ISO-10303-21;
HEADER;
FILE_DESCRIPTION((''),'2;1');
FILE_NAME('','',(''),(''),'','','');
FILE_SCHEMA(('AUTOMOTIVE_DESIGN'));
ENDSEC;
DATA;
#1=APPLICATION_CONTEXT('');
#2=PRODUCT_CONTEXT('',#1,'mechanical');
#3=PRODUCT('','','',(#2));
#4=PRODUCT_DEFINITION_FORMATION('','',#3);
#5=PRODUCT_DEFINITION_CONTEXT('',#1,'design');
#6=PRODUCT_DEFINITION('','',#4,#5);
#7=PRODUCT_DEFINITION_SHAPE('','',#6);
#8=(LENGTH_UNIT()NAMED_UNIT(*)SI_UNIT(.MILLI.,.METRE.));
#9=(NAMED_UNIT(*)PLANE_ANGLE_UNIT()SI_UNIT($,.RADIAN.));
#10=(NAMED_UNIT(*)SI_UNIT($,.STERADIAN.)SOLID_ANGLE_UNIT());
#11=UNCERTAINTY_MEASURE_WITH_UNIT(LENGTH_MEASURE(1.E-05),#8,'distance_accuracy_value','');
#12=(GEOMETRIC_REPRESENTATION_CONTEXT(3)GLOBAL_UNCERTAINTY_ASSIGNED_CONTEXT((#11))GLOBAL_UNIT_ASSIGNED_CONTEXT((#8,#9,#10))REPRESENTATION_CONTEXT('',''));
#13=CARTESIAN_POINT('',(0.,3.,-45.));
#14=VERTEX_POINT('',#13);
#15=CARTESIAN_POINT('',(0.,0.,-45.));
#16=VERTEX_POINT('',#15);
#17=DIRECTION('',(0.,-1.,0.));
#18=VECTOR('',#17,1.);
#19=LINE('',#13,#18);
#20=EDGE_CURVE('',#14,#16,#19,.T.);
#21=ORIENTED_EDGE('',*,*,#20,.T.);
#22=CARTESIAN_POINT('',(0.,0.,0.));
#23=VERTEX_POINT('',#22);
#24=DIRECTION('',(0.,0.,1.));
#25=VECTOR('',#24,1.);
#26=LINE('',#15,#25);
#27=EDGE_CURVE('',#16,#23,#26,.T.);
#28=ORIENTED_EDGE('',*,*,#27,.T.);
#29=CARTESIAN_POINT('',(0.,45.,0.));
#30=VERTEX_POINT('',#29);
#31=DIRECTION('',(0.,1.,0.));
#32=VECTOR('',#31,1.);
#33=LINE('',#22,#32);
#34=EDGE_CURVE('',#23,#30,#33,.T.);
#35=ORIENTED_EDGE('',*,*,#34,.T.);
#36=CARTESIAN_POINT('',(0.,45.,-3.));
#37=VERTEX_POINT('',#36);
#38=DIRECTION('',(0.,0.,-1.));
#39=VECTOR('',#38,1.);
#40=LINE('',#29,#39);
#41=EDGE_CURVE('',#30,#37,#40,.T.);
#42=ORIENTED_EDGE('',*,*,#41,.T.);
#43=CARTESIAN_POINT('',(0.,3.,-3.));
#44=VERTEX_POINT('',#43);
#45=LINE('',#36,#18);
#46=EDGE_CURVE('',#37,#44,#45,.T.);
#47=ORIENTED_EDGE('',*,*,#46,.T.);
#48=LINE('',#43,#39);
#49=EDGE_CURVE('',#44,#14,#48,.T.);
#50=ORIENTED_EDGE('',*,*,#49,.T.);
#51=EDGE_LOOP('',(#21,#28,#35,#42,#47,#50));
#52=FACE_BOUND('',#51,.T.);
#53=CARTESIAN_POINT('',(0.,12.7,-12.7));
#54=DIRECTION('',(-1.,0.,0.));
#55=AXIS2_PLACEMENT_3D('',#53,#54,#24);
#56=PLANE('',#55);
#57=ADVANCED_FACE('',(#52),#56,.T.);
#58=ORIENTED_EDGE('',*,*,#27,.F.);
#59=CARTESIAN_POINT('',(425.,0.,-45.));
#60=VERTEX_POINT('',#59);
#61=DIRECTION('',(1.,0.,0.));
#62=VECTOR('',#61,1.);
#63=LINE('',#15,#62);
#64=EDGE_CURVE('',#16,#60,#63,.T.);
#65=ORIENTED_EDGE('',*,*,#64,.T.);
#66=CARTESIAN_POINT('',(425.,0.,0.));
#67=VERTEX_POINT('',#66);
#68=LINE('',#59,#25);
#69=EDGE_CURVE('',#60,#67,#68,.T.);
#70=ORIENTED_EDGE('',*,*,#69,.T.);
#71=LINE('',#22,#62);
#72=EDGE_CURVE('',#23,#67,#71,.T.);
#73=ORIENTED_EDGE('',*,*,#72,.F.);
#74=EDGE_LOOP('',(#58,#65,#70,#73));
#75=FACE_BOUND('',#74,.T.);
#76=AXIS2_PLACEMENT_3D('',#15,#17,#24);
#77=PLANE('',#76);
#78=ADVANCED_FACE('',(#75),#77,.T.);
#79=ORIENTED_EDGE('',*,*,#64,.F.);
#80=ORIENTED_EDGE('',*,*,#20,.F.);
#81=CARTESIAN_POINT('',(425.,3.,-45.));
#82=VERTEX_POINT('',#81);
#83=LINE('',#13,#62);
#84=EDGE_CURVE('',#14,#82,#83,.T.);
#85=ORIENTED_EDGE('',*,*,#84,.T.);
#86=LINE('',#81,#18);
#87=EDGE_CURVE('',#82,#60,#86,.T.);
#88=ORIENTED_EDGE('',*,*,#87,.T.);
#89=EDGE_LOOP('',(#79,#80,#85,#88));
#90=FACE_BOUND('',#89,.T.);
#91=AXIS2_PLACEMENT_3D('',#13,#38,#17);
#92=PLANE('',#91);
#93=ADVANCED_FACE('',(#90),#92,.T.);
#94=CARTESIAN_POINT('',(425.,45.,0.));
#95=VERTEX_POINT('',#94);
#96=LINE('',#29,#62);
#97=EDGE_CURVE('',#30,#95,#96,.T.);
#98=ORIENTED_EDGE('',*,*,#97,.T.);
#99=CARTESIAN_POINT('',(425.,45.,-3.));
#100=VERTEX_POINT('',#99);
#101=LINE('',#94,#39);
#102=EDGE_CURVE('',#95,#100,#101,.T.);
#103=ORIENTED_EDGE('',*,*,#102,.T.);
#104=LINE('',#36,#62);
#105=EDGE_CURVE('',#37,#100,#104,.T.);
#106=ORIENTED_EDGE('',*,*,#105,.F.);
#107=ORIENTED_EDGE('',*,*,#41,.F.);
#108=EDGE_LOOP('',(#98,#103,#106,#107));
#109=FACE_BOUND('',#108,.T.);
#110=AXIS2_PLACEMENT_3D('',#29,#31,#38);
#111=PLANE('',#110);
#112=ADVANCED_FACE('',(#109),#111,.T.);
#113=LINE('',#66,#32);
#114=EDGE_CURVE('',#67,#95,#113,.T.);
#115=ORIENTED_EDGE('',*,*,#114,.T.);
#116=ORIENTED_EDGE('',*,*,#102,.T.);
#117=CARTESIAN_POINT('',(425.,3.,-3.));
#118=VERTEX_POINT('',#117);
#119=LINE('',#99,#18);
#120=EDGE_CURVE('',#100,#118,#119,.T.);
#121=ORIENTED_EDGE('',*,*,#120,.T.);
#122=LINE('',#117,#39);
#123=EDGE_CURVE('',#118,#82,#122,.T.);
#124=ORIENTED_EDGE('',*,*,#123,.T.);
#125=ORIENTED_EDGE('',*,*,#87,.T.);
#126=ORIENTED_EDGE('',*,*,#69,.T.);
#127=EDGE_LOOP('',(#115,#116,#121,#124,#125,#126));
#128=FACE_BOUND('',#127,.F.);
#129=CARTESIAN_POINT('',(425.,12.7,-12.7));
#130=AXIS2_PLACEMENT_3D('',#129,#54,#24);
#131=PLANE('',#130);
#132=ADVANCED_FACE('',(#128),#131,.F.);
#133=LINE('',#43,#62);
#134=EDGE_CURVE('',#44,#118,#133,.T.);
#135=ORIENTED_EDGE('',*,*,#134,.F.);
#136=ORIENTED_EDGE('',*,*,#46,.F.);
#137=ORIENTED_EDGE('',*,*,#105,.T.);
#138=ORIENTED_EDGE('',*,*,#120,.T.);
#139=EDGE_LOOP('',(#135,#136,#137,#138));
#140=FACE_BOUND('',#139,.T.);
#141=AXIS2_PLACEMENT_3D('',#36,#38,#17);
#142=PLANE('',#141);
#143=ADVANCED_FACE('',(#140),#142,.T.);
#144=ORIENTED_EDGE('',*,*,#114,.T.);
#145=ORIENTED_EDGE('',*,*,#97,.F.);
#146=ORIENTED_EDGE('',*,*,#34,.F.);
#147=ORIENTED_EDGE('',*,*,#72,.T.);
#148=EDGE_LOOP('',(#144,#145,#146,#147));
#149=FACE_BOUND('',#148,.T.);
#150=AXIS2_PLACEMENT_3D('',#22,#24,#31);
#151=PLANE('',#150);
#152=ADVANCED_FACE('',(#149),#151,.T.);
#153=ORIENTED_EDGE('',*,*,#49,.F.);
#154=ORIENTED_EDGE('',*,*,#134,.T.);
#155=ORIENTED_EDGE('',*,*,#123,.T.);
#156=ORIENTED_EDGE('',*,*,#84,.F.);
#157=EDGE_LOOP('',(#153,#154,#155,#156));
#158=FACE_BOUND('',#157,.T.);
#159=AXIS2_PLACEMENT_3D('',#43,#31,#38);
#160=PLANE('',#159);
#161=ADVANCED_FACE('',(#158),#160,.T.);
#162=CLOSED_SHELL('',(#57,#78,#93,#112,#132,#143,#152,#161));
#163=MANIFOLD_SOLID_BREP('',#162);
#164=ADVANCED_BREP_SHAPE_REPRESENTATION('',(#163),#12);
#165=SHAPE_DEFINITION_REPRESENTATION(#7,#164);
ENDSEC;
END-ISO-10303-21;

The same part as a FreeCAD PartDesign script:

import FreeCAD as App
import Part
import Sketcher
Q = App.Units.Quantity


def add_polygon(sketch, points):
    """Adds a closed chain of lines whose ends are joined by coincident constraints."""
    first, n = sketch.GeometryCount, len(points)
    for a, b in zip(points, points[1:] + points[:1]):
        sketch.addGeometry(Part.LineSegment(App.Vector(*a, 0), App.Vector(*b, 0)), False)
    for i in range(n):
        sketch.addConstraint(Sketcher.Constraint("Coincident", first + i, 2, first + (i + 1) % n, 1))

doc = App.newDocument("Part")
body = doc.addObject("PartDesign::Body", "Body")

# Sketch on YZ plane
sketch1 = body.newObject("Sketcher::SketchObject", "Sketch")
sketch1.AttachmentSupport = (doc.getObject("YZ_Plane"), [""])
sketch1.MapMode = "FlatFace"
add_polygon(sketch1, [(0, 0), (0, -45), (3, -45), (3, -3), (45, -3), (45, 0)])  # lines 0-5
sketch1.addConstraint(Sketcher.Constraint("Vertical", 0))
sketch1.addConstraint(Sketcher.Constraint("Horizontal", 1))
sketch1.addConstraint(Sketcher.Constraint("Vertical", 2))
sketch1.addConstraint(Sketcher.Constraint("Horizontal", 3))
sketch1.addConstraint(Sketcher.Constraint("Vertical", 4))
sketch1.addConstraint(Sketcher.Constraint("Horizontal", 5))
sketch1.addConstraint(Sketcher.Constraint("Coincident", 5, 2, -1, 1))
sketch1.addConstraint(Sketcher.Constraint("Equal", 5, 0))
sketch1.addConstraint(Sketcher.Constraint("Equal", 3, 2))
sketch1.addConstraint(Sketcher.Constraint("DistanceX", 1, 1, 1, 2, Q("3 mm")))
sketch1.addConstraint(Sketcher.Constraint("DistanceX", 3, 1, 3, 2, Q("42 mm")))
pad1 = body.newObject("PartDesign::Pad", "Pad")
pad1.Profile = sketch1
pad1.Length = 425

doc.recompute()
